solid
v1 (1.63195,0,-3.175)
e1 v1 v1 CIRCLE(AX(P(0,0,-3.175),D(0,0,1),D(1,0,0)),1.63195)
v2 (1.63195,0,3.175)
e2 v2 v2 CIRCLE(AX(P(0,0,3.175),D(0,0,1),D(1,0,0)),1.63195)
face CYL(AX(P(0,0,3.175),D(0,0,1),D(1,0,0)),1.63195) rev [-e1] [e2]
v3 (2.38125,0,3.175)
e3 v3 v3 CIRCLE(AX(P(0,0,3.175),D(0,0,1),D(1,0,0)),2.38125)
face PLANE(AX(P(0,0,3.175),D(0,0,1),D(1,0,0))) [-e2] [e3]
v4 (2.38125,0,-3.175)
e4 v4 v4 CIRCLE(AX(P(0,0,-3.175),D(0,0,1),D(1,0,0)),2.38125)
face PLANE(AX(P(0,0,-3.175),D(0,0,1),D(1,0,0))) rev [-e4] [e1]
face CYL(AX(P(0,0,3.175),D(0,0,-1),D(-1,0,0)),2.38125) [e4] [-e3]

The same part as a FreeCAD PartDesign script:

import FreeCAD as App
import Part
import Sketcher

V = App.Vector
Q = App.Units.Quantity

doc = App.newDocument("Part")
body = doc.addObject("PartDesign::Body", "Body")

# Sketch on XY plane
sketch1 = body.newObject("Sketcher::SketchObject", "Sketch")
sketch1.AttachmentSupport = (doc.getObject("XY_Plane"), [""])
sketch1.MapMode = "FlatFace"
sketch1.addGeometry(Part.Circle(V(0, 0, 0), V(0, 0, 1), 2.38125), False)
sketch1.addConstraint(Sketcher.Constraint("Coincident", 0, 3, -1, 1))
sketch1.addConstraint(Sketcher.Constraint("Diameter", 0, Q("0.1875 in")))
pad1 = body.newObject("PartDesign::Pad", "Pad")
pad1.Profile = sketch1
pad1.Length = Q("0.25 in")
pad1.Midplane = True

# Sketch on XY plane
sketch2 = body.newObject("Sketcher::SketchObject", "Sketch001")
sketch2.AttachmentSupport = (doc.getObject("XY_Plane"), [""])
sketch2.MapMode = "FlatFace"
sketch2.AttachmentOffset = App.Placement(V(0, 0, 0.125 * 25.4), App.Rotation())
sketch2.addGeometry(Part.Circle(V(0, 0, 0), V(0, 0, 1), 1.63195), False)
sketch2.addConstraint(Sketcher.Constraint("Coincident", 0, 3, -1, 1))
sketch2.addConstraint(Sketcher.Constraint("Diameter", 0, Q("0.1285 in")))
doc.recompute()
hole = body.newObject("PartDesign::Hole", "Hole")
hole.Profile = sketch2
hole.ThreadType = "None"
hole.Diameter = Q("0.1285 in")
hole.DepthType = "Dimension"
hole.Depth = Q("0.25 in")
hole.DrillPoint = "Angled"
hole.DrillPointAngle = 118

doc.recompute()
